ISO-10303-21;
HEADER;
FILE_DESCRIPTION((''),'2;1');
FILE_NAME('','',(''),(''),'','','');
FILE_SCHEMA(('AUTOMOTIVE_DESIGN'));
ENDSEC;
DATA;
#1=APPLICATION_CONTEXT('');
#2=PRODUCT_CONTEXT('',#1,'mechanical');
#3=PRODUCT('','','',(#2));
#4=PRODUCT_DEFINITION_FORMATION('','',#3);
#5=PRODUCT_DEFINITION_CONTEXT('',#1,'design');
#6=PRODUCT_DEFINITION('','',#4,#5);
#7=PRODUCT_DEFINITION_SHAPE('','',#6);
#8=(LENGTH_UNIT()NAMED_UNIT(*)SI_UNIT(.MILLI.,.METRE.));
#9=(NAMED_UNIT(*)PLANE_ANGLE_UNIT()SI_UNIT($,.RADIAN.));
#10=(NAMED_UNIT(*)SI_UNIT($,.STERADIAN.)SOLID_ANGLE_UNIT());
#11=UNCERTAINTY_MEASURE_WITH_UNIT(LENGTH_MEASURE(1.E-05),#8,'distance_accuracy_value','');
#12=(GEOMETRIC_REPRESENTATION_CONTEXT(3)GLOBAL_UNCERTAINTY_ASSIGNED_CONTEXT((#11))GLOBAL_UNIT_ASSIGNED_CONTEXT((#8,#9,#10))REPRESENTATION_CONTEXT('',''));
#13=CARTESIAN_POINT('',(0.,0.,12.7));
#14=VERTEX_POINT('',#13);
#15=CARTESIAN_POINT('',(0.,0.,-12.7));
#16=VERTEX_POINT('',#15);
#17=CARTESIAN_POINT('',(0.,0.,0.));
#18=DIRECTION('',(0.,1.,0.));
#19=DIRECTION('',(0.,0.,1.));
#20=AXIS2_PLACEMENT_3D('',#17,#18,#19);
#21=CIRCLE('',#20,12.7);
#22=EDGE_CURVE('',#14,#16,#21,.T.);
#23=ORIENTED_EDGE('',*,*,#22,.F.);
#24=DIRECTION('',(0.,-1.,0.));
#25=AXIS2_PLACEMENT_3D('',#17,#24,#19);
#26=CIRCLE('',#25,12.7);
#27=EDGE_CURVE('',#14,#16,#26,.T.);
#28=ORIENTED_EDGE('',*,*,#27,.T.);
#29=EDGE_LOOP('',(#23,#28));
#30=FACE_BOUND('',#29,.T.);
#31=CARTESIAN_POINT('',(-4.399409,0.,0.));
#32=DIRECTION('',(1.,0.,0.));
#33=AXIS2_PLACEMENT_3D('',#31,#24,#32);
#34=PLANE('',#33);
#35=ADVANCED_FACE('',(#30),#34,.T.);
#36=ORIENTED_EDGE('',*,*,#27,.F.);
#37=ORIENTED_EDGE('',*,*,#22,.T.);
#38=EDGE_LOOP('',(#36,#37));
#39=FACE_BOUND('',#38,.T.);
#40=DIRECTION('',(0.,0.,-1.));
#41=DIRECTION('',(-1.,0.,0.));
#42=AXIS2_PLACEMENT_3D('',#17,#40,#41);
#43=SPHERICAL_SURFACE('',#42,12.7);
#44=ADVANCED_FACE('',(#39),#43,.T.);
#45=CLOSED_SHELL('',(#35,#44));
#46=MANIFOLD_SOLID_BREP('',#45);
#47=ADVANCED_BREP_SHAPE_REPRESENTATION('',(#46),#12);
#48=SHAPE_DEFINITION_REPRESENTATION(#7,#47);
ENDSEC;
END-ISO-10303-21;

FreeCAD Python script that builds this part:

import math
import FreeCAD as App
import Part
import Sketcher

V = App.Vector
Q = App.Units.Quantity

doc = App.newDocument("Part")
body = doc.addObject("PartDesign::Body", "Body")

# Sketch on XZ plane
sketch1 = doc.addObject("Sketcher::SketchObject", "Sketch")
body.addObject(sketch1)
sketch1.AttachmentSupport = (doc.XZ_Plane, [""])
sketch1.MapMode = "FlatFace"
sketch1.addGeometry(Part.ArcOfCircle(Part.Circle(V(0, 0, 0), V(0, 0, 1), 13), math.radians(90), math.radians(270)), False)
sketch1.addGeometry(Part.LineSegment(V(0, -13, 0), V(0, 13, 0)), False)
sketch1.addConstraint(Sketcher.Constraint("Coincident", 0, 1, 1, 2))
sketch1.addConstraint(Sketcher.Constraint("Coincident", 1, 1, 0, 2))
sketch1.addConstraint(Sketcher.Constraint("Vertical", 1))
sketch1.addConstraint(Sketcher.Constraint("Coincident", 0, 3, -1, 1))
sketch1.addConstraint(Sketcher.Constraint("PointOnObject", 0, 1, -2))
sketch1.addConstraint(Sketcher.Constraint("Radius", 0, Q("0.5 in")))
revolution = doc.addObject("PartDesign::Revolution", "Revolution")
body.addObject(revolution)
revolution.Profile = sketch1
revolution.ReferenceAxis = (sketch1, ["V_Axis"])
revolution.Angle = 180
revolution.Reversed = True

doc.recompute()
